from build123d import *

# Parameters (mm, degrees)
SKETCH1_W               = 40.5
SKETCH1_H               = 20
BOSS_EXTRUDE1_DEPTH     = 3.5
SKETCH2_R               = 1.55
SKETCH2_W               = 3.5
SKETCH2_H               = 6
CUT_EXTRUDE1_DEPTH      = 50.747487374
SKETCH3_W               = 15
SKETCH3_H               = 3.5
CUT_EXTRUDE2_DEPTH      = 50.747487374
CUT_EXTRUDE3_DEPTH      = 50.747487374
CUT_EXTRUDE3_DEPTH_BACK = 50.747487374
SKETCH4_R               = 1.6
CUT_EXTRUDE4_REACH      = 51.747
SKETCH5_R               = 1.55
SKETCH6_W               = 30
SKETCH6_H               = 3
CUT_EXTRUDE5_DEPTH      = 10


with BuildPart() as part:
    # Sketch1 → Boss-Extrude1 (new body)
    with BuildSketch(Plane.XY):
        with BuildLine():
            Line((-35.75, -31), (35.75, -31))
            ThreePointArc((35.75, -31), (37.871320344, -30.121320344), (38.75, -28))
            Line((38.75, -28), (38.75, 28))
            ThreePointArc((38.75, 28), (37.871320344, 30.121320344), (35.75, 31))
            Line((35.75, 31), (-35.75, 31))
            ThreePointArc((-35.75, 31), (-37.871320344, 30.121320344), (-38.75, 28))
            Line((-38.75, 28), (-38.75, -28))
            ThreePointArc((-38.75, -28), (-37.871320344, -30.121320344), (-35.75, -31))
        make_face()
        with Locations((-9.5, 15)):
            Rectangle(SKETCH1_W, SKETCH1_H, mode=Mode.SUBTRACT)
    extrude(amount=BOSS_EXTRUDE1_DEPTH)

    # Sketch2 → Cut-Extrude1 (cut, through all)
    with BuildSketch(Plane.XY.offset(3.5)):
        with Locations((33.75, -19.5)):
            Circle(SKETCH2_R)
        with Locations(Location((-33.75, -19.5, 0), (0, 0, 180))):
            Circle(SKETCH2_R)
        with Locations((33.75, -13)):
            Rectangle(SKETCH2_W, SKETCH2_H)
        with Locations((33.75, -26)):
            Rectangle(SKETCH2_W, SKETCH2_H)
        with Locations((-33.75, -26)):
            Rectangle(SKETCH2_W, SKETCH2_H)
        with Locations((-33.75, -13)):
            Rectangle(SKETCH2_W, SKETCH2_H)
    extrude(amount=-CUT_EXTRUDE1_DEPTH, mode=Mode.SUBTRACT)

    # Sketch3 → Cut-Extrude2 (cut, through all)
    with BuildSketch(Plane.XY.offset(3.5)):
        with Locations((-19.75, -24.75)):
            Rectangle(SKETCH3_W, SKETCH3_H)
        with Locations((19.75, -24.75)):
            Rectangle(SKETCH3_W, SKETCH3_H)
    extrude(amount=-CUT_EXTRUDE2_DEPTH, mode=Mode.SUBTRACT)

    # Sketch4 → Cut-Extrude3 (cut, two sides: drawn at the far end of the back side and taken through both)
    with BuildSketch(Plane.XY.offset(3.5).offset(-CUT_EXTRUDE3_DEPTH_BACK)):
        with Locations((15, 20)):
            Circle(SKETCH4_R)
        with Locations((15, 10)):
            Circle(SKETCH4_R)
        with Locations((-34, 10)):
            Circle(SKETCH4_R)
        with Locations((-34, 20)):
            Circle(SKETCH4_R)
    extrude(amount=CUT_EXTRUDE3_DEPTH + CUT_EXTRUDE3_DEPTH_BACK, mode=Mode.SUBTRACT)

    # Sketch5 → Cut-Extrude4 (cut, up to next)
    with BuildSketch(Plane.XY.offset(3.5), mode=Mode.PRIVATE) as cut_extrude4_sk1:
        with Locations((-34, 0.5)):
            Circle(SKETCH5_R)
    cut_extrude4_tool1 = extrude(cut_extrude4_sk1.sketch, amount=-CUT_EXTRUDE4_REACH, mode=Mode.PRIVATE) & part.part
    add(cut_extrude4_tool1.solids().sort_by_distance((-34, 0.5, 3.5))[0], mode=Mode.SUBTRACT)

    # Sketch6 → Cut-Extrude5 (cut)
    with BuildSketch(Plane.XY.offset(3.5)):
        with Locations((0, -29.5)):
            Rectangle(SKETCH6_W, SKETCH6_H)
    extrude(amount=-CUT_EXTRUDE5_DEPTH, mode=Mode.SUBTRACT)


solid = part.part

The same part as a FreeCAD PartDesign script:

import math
import FreeCAD as App
import Part
import Sketcher

V = App.Vector

doc = App.newDocument("Part")
body = doc.addObject("PartDesign::Body", "Body")

sketch1 = body.newObject("Sketcher::SketchObject", "Sketch")
sketch1.AttachmentSupport = (doc.getObject("XY_Plane"), [""])
sketch1.MapMode = "FlatFace"
sketch1.addGeometry(Part.LineSegment(V(-35.8, -31, 0), V(35.8, -31, 0)), False)
sketch1.addGeometry(Part.ArcOfCircle(Part.Circle(V(35.8, -28, 0), V(0, 0, 1), 3), math.radians(-90), math.radians(0)), False)
sketch1.addGeometry(Part.LineSegment(V(38.8, -28, 0), V(38.8, 28, 0)), False)
sketch1.addGeometry(Part.ArcOfCircle(Part.Circle(V(35.8, 28, 0), V(0, 0, 1), 3), math.radians(0), math.radians(90)), False)
sketch1.addGeometry(Part.LineSegment(V(35.8, 31, 0), V(-35.8, 31, 0)), False)
sketch1.addGeometry(Part.ArcOfCircle(Part.Circle(V(-35.8, 28, 0), V(0, 0, 1), 3), math.radians(90), math.radians(180)), False)
sketch1.addGeometry(Part.LineSegment(V(-38.8, 28, 0), V(-38.8, -28, 0)), False)
sketch1.addGeometry(Part.ArcOfCircle(Part.Circle(V(-35.8, -28, 0), V(0, 0, 1), 3), math.radians(180), math.radians(270)), False)
sketch1.addGeometry(Part.LineSegment(V(10.8, 5, 0), V(-29.8, 5, 0)), False)
sketch1.addGeometry(Part.LineSegment(V(-29.8, 5, 0), V(-29.8, 25, 0)), False)
sketch1.addGeometry(Part.LineSegment(V(-29.8, 25, 0), V(10.8, 25, 0)), False)
sketch1.addGeometry(Part.LineSegment(V(10.8, 25, 0), V(10.8, 5, 0)), False)
sketch1.addConstraint(Sketcher.Constraint("Tangent", 0, 2, 1, 1))
sketch1.addConstraint(Sketcher.Constraint("Tangent", 1, 2, 2, 1))
sketch1.addConstraint(Sketcher.Constraint("Tangent", 2, 2, 3, 1))
sketch1.addConstraint(Sketcher.Constraint("Tangent", 3, 2, 4, 1))
sketch1.addConstraint(Sketcher.Constraint("Tangent", 4, 2, 5, 1))
sketch1.addConstraint(Sketcher.Constraint("Tangent", 5, 2, 6, 1))
sketch1.addConstraint(Sketcher.Constraint("Tangent", 6, 2, 7, 1))
sketch1.addConstraint(Sketcher.Constraint("Tangent", 7, 2, 0, 1))
sketch1.addConstraint(Sketcher.Constraint("Coincident", 8, 2, 9, 1))
sketch1.addConstraint(Sketcher.Constraint("Coincident", 9, 2, 10, 1))
sketch1.addConstraint(Sketcher.Constraint("Coincident", 10, 2, 11, 1))
sketch1.addConstraint(Sketcher.Constraint("Coincident", 11, 2, 8, 1))
sketch1.addConstraint(Sketcher.Constraint("Horizontal", 0))
sketch1.addConstraint(Sketcher.Constraint("Vertical", 2))
sketch1.addConstraint(Sketcher.Constraint("Horizontal", 4))
sketch1.addConstraint(Sketcher.Constraint("Vertical", 6))
sketch1.addConstraint(Sketcher.Constraint("Horizontal", 8))
sketch1.addConstraint(Sketcher.Constraint("Vertical", 9))
sketch1.addConstraint(Sketcher.Constraint("Horizontal", 10))
sketch1.addConstraint(Sketcher.Constraint("Vertical", 11))
sketch1.addConstraint(Sketcher.Constraint("Equal", 1, 3))
sketch1.addConstraint(Sketcher.Constraint("Equal", 3, 5))
sketch1.addConstraint(Sketcher.Constraint("Equal", 5, 7))
sketch1.addConstraint(Sketcher.Constraint("Symmetric", 1, 3, 5, 3, -1, 1))
sketch1.addConstraint(Sketcher.Constraint("Radius", 1, 3.0))
sketch1.addConstraint(Sketcher.Constraint("DistanceY", 2, 1, 2, 2, 56.0))
sketch1.addConstraint(Sketcher.Constraint("DistanceY", 9, 1, 9, 2, 20.0))
sketch1.addConstraint(Sketcher.Constraint("DistanceX", 0, 1, 0, 2, 71.5))
sketch1.addConstraint(Sketcher.Constraint("DistanceX", 8, 2, 8, 1, 40.5))
sketch1.addConstraint(Sketcher.Constraint("DistanceY", -1, 1, 8, 2, 5.0))
sketch1.addConstraint(Sketcher.Constraint("DistanceX", 5, 3, 8, 2, 6.0))
pad1 = body.newObject("PartDesign::Pad", "Pad")
pad1.Profile = sketch1
pad1.Length = 3.5

sketch2 = body.newObject("Sketcher::SketchObject", "Sketch001")
sketch2.AttachmentSupport = (doc.getObject("XY_Plane"), [""])
sketch2.MapMode = "FlatFace"
sketch2.AttachmentOffset = App.Placement(V(0, 0, 3.5), App.Rotation())
sketch2.addGeometry(Part.Circle(V(33.8, -19.5, 0), V(0, 0, 1), 1.6), False)
sketch2.addGeometry(Part.Circle(V(-33.8, -19.5, 0), V(0, 0, 1), 1.6), False)
sketch2.addGeometry(Part.LineSegment(V(32, -10, 0), V(32, -16, 0)), False)
sketch2.addGeometry(Part.LineSegment(V(32, -16, 0), V(35.5, -16, 0)), False)
sketch2.addGeometry(Part.LineSegment(V(35.5, -16, 0), V(35.5, -10, 0)), False)
sketch2.addGeometry(Part.LineSegment(V(35.5, -10, 0), V(32, -10, 0)), False)
sketch2.addGeometry(Part.LineSegment(V(32, -23, 0), V(32, -29, 0)), False)
sketch2.addGeometry(Part.LineSegment(V(32, -29, 0), V(35.5, -29, 0)), False)
sketch2.addGeometry(Part.LineSegment(V(35.5, -29, 0), V(35.5, -23, 0)), False)
sketch2.addGeometry(Part.LineSegment(V(35.5, -23, 0), V(32, -23, 0)), False)
sketch2.addGeometry(Part.LineSegment(V(-35.5, -23, 0), V(-35.5, -29, 0)), False)
sketch2.addGeometry(Part.LineSegment(V(-35.5, -29, 0), V(-32, -29, 0)), False)
sketch2.addGeometry(Part.LineSegment(V(-32, -29, 0), V(-32, -23, 0)), False)
sketch2.addGeometry(Part.LineSegment(V(-32, -23, 0), V(-35.5, -23, 0)), False)
sketch2.addGeometry(Part.LineSegment(V(-35.5, -10, 0), V(-35.5, -16, 0)), False)
sketch2.addGeometry(Part.LineSegment(V(-35.5, -16, 0), V(-32, -16, 0)), False)
sketch2.addGeometry(Part.LineSegment(V(-32, -16, 0), V(-32, -10, 0)), False)
sketch2.addGeometry(Part.LineSegment(V(-32, -10, 0), V(-35.5, -10, 0)), False)
sketch2.addConstraint(Sketcher.Constraint("Coincident", 2, 2, 3, 1))
sketch2.addConstraint(Sketcher.Constraint("Coincident", 3, 2, 4, 1))
sketch2.addConstraint(Sketcher.Constraint("Coincident", 4, 2, 5, 1))
sketch2.addConstraint(Sketcher.Constraint("Coincident", 5, 2, 2, 1))
sketch2.addConstraint(Sketcher.Constraint("Coincident", 6, 2, 7, 1))
sketch2.addConstraint(Sketcher.Constraint("Coincident", 7, 2, 8, 1))
sketch2.addConstraint(Sketcher.Constraint("Coincident", 8, 2, 9, 1))
sketch2.addConstraint(Sketcher.Constraint("Coincident", 9, 2, 6, 1))
sketch2.addConstraint(Sketcher.Constraint("Coincident", 10, 2, 11, 1))
sketch2.addConstraint(Sketcher.Constraint("Coincident", 11, 2, 12, 1))
sketch2.addConstraint(Sketcher.Constraint("Coincident", 12, 2, 13, 1))
sketch2.addConstraint(Sketcher.Constraint("Coincident", 13, 2, 10, 1))
sketch2.addConstraint(Sketcher.Constraint("Coincident", 14, 2, 15, 1))
sketch2.addConstraint(Sketcher.Constraint("Coincident", 15, 2, 16, 1))
sketch2.addConstraint(Sketcher.Constraint("Coincident", 16, 2, 17, 1))
sketch2.addConstraint(Sketcher.Constraint("Coincident", 17, 2, 14, 1))
sketch2.addConstraint(Sketcher.Constraint("Vertical", 2))
sketch2.addConstraint(Sketcher.Constraint("Horizontal", 3))
sketch2.addConstraint(Sketcher.Constraint("Vertical", 4))
sketch2.addConstraint(Sketcher.Constraint("Horizontal", 5))
sketch2.addConstraint(Sketcher.Constraint("Vertical", 6))
sketch2.addConstraint(Sketcher.Constraint("Horizontal", 7))
sketch2.addConstraint(Sketcher.Constraint("Vertical", 8))
sketch2.addConstraint(Sketcher.Constraint("Horizontal", 9))
sketch2.addConstraint(Sketcher.Constraint("Vertical", 10))
sketch2.addConstraint(Sketcher.Constraint("Horizontal", 11))
sketch2.addConstraint(Sketcher.Constraint("Vertical", 12))
sketch2.addConstraint(Sketcher.Constraint("Horizontal", 13))
sketch2.addConstraint(Sketcher.Constraint("Vertical", 14))
sketch2.addConstraint(Sketcher.Constraint("Horizontal", 15))
sketch2.addConstraint(Sketcher.Constraint("Vertical", 16))
sketch2.addConstraint(Sketcher.Constraint("Horizontal", 17))
sketch2.addConstraint(Sketcher.Constraint("Equal", 0, 1))
sketch2.addConstraint(Sketcher.Constraint("Symmetric", 0, 3, 1, 3, -2))
sketch2.addConstraint(Sketcher.Constraint("Symmetric", 7, 2, 10, 2, -2))
sketch2.addConstraint(Sketcher.Constraint("Symmetric", 9, 2, 12, 2, -2))
sketch2.addConstraint(Sketcher.Constraint("Symmetric", 3, 2, 14, 2, -2))
sketch2.addConstraint(Sketcher.Constraint("Symmetric", 5, 2, 16, 2, -2))
sketch2.addConstraint(Sketcher.Constraint("Vertical", 5, 2, 6, 2))
sketch2.addConstraint(Sketcher.Constraint("Vertical", 4, 2, 7, 2))
sketch2.addConstraint(Sketcher.Constraint("Equal", 4, 6))
sketch2.addConstraint(Sketcher.Constraint("Diameter", 0, 3.1))
sketch2.addConstraint(Sketcher.Constraint("DistanceY", 2, 2, 2, 1, 6.0))
sketch2.addConstraint(Sketcher.Constraint("DistanceX", 3, 1, 3, 2, 3.5))
sketch2.addConstraint(Sketcher.Constraint("DistanceX", -1, 1, 2, 2, 32.0))
sketch2.addConstraint(Sketcher.Constraint("DistanceY", 2, 2, -1, 1, 16.0))
sketch2.addConstraint(Sketcher.Constraint("DistanceY", 6, 2, -1, 1, 29.0))
sketch2.addConstraint(Sketcher.Constraint("DistanceY", 0, 3, -1, 1, 19.5))
sketch2.addConstraint(Sketcher.Constraint("DistanceX", 1, 3, 0, 3, 67.5))
pocket1 = body.newObject("PartDesign::Pocket", "Pocket")
pocket1.Profile = sketch2
pocket1.Type = "ThroughAll"

sketch3 = body.newObject("Sketcher::SketchObject", "Sketch002")
sketch3.AttachmentSupport = (doc.getObject("XY_Plane"), [""])
sketch3.MapMode = "FlatFace"
sketch3.AttachmentOffset = App.Placement(V(0, 0, 3.5), App.Rotation())
sketch3.addGeometry(Part.LineSegment(V(-27.2, -23, 0), V(-27.2, -26.5, 0)), False)
sketch3.addGeometry(Part.LineSegment(V(-27.2, -26.5, 0), V(-12.2, -26.5, 0)), False)
sketch3.addGeometry(Part.LineSegment(V(-12.2, -26.5, 0), V(-12.2, -23, 0)), False)
sketch3.addGeometry(Part.LineSegment(V(-12.2, -23, 0), V(-27.2, -23, 0)), False)
sketch3.addGeometry(Part.LineSegment(V(12.2, -23, 0), V(12.2, -26.5, 0)), False)
sketch3.addGeometry(Part.LineSegment(V(12.2, -26.5, 0), V(27.2, -26.5, 0)), False)
sketch3.addGeometry(Part.LineSegment(V(27.2, -26.5, 0), V(27.2, -23, 0)), False)
sketch3.addGeometry(Part.LineSegment(V(27.2, -23, 0), V(12.2, -23, 0)), False)
sketch3.addConstraint(Sketcher.Constraint("Coincident", 0, 2, 1, 1))
sketch3.addConstraint(Sketcher.Constraint("Coincident", 1, 2, 2, 1))
sketch3.addConstraint(Sketcher.Constraint("Coincident", 2, 2, 3, 1))
sketch3.addConstraint(Sketcher.Constraint("Coincident", 3, 2, 0, 1))
sketch3.addConstraint(Sketcher.Constraint("Coincident", 4, 2, 5, 1))
sketch3.addConstraint(Sketcher.Constraint("Coincident", 5, 2, 6, 1))
sketch3.addConstraint(Sketcher.Constraint("Coincident", 6, 2, 7, 1))
sketch3.addConstraint(Sketcher.Constraint("Coincident", 7, 2, 4, 1))
sketch3.addConstraint(Sketcher.Constraint("Vertical", 0))
sketch3.addConstraint(Sketcher.Constraint("Horizontal", 1))
sketch3.addConstraint(Sketcher.Constraint("Vertical", 2))
sketch3.addConstraint(Sketcher.Constraint("Horizontal", 3))
sketch3.addConstraint(Sketcher.Constraint("Vertical", 4))
sketch3.addConstraint(Sketcher.Constraint("Horizontal", 5))
sketch3.addConstraint(Sketcher.Constraint("Vertical", 6))
sketch3.addConstraint(Sketcher.Constraint("Horizontal", 7))
sketch3.addConstraint(Sketcher.Constraint("Symmetric", 1, 2, 4, 2, -2))
sketch3.addConstraint(Sketcher.Constraint("Symmetric", 3, 2, 6, 2, -2))
sketch3.addConstraint(Sketcher.Constraint("DistanceX", 1, 1, 1, 2, 15.0))
sketch3.addConstraint(Sketcher.Constraint("DistanceY", 0, 2, 0, 1, 3.5))
sketch3.addConstraint(Sketcher.Constraint("DistanceY", 2, 2, -1, 1, 23.0))
sketch3.addConstraint(Sketcher.Constraint("DistanceX", 1, 2, 4, 2, 24.5))
pocket2 = body.newObject("PartDesign::Pocket", "Pocket001")
pocket2.Profile = sketch3
pocket2.Type = "ThroughAll"

sketch4 = body.newObject("Sketcher::SketchObject", "Sketch003")
sketch4.AttachmentSupport = (doc.getObject("XY_Plane"), [""])
sketch4.MapMode = "FlatFace"
sketch4.AttachmentOffset = App.Placement(V(0, 0, 3.5), App.Rotation())
sketch4.addGeometry(Part.Circle(V(15, 20, 0), V(0, 0, 1), 1.6), False)
sketch4.addGeometry(Part.Circle(V(15, 10, 0), V(0, 0, 1), 1.6), False)
sketch4.addGeometry(Part.Circle(V(-34, 10, 0), V(0, 0, 1), 1.6), False)
sketch4.addGeometry(Part.Circle(V(-34, 20, 0), V(0, 0, 1), 1.6), False)
sketch4.addConstraint(Sketcher.Constraint("Equal", 0, 1))
sketch4.addConstraint(Sketcher.Constraint("Equal", 1, 2))
sketch4.addConstraint(Sketcher.Constraint("Equal", 2, 3))
sketch4.addConstraint(Sketcher.Constraint("Horizontal", 1, 3, 2, 3))
sketch4.addConstraint(Sketcher.Constraint("Horizontal", 0, 3, 3, 3))
sketch4.addConstraint(Sketcher.Constraint("Vertical", 0, 3, 1, 3))
sketch4.addConstraint(Sketcher.Constraint("Vertical", 2, 3, 3, 3))
sketch4.addConstraint(Sketcher.Constraint("Diameter", 0, 3.2))
sketch4.addConstraint(Sketcher.Constraint("DistanceX", -1, 1, 0, 3, 15.0))
sketch4.addConstraint(Sketcher.Constraint("DistanceY", -1, 1, 0, 3, 20.0))
sketch4.addConstraint(Sketcher.Constraint("DistanceY", -1, 1, 1, 3, 10.0))
sketch4.addConstraint(Sketcher.Constraint("DistanceX", 2, 3, -1, 1, 34.0))
pocket3 = body.newObject("PartDesign::Pocket", "Pocket002")
pocket3.Profile = sketch4
pocket3.Type = "ThroughAll"
pocket3.Midplane = True

sketch5 = body.newObject("Sketcher::SketchObject", "Sketch004")
sketch5.AttachmentSupport = (doc.getObject("XY_Plane"), [""])
sketch5.MapMode = "FlatFace"
sketch5.AttachmentOffset = App.Placement(V(0, 0, 3.5), App.Rotation())
sketch5.addGeometry(Part.Circle(V(-34, 0.5, 0), V(0, 0, 1), 1.6), False)
sketch5.addConstraint(Sketcher.Constraint("Diameter", 0, 3.1))
sketch5.addConstraint(Sketcher.Constraint("DistanceX", 0, 3, -1, 1, 34.0))
sketch5.addConstraint(Sketcher.Constraint("DistanceY", -1, 1, 0, 3, 0.5))
pocket4 = body.newObject("PartDesign::Pocket", "Pocket003")
pocket4.Profile = sketch5
pocket4.Type = "UpToFirst"

sketch6 = body.newObject("Sketcher::SketchObject", "Sketch005")
sketch6.AttachmentSupport = (doc.getObject("XY_Plane"), [""])
sketch6.MapMode = "FlatFace"
sketch6.AttachmentOffset = App.Placement(V(0, 0, 3.5), App.Rotation())
sketch6.addGeometry(Part.LineSegment(V(-15, -28, 0), V(-15, -31, 0)), False)
sketch6.addGeometry(Part.LineSegment(V(-15, -31, 0), V(15, -31, 0)), False)
sketch6.addGeometry(Part.LineSegment(V(15, -31, 0), V(15, -28, 0)), False)
sketch6.addGeometry(Part.LineSegment(V(15, -28, 0), V(-15, -28, 0)), False)
sketch6.addConstraint(Sketcher.Constraint("Coincident", 0, 2, 1, 1))
sketch6.addConstraint(Sketcher.Constraint("Coincident", 1, 2, 2, 1))
sketch6.addConstraint(Sketcher.Constraint("Coincident", 2, 2, 3, 1))
sketch6.addConstraint(Sketcher.Constraint("Coincident", 3, 2, 0, 1))
sketch6.addConstraint(Sketcher.Constraint("Vertical", 0))
sketch6.addConstraint(Sketcher.Constraint("Horizontal", 1))
sketch6.addConstraint(Sketcher.Constraint("Vertical", 2))
sketch6.addConstraint(Sketcher.Constraint("Horizontal", 3))
sketch6.addConstraint(Sketcher.Constraint("DistanceX", 1, 1, 1, 2, 30.0))
sketch6.addConstraint(Sketcher.Constraint("DistanceY", 0, 2, 0, 1, 3.0))
sketch6.addConstraint(Sketcher.Constraint("DistanceX", 0, 2, -1, 1, 15.0))
sketch6.addConstraint(Sketcher.Constraint("DistanceY", 0, 2, -1, 1, 31.0))
pocket5 = body.newObject("PartDesign::Pocket", "Pocket004")
pocket5.Profile = sketch6
pocket5.Length = 10

doc.recompute()
